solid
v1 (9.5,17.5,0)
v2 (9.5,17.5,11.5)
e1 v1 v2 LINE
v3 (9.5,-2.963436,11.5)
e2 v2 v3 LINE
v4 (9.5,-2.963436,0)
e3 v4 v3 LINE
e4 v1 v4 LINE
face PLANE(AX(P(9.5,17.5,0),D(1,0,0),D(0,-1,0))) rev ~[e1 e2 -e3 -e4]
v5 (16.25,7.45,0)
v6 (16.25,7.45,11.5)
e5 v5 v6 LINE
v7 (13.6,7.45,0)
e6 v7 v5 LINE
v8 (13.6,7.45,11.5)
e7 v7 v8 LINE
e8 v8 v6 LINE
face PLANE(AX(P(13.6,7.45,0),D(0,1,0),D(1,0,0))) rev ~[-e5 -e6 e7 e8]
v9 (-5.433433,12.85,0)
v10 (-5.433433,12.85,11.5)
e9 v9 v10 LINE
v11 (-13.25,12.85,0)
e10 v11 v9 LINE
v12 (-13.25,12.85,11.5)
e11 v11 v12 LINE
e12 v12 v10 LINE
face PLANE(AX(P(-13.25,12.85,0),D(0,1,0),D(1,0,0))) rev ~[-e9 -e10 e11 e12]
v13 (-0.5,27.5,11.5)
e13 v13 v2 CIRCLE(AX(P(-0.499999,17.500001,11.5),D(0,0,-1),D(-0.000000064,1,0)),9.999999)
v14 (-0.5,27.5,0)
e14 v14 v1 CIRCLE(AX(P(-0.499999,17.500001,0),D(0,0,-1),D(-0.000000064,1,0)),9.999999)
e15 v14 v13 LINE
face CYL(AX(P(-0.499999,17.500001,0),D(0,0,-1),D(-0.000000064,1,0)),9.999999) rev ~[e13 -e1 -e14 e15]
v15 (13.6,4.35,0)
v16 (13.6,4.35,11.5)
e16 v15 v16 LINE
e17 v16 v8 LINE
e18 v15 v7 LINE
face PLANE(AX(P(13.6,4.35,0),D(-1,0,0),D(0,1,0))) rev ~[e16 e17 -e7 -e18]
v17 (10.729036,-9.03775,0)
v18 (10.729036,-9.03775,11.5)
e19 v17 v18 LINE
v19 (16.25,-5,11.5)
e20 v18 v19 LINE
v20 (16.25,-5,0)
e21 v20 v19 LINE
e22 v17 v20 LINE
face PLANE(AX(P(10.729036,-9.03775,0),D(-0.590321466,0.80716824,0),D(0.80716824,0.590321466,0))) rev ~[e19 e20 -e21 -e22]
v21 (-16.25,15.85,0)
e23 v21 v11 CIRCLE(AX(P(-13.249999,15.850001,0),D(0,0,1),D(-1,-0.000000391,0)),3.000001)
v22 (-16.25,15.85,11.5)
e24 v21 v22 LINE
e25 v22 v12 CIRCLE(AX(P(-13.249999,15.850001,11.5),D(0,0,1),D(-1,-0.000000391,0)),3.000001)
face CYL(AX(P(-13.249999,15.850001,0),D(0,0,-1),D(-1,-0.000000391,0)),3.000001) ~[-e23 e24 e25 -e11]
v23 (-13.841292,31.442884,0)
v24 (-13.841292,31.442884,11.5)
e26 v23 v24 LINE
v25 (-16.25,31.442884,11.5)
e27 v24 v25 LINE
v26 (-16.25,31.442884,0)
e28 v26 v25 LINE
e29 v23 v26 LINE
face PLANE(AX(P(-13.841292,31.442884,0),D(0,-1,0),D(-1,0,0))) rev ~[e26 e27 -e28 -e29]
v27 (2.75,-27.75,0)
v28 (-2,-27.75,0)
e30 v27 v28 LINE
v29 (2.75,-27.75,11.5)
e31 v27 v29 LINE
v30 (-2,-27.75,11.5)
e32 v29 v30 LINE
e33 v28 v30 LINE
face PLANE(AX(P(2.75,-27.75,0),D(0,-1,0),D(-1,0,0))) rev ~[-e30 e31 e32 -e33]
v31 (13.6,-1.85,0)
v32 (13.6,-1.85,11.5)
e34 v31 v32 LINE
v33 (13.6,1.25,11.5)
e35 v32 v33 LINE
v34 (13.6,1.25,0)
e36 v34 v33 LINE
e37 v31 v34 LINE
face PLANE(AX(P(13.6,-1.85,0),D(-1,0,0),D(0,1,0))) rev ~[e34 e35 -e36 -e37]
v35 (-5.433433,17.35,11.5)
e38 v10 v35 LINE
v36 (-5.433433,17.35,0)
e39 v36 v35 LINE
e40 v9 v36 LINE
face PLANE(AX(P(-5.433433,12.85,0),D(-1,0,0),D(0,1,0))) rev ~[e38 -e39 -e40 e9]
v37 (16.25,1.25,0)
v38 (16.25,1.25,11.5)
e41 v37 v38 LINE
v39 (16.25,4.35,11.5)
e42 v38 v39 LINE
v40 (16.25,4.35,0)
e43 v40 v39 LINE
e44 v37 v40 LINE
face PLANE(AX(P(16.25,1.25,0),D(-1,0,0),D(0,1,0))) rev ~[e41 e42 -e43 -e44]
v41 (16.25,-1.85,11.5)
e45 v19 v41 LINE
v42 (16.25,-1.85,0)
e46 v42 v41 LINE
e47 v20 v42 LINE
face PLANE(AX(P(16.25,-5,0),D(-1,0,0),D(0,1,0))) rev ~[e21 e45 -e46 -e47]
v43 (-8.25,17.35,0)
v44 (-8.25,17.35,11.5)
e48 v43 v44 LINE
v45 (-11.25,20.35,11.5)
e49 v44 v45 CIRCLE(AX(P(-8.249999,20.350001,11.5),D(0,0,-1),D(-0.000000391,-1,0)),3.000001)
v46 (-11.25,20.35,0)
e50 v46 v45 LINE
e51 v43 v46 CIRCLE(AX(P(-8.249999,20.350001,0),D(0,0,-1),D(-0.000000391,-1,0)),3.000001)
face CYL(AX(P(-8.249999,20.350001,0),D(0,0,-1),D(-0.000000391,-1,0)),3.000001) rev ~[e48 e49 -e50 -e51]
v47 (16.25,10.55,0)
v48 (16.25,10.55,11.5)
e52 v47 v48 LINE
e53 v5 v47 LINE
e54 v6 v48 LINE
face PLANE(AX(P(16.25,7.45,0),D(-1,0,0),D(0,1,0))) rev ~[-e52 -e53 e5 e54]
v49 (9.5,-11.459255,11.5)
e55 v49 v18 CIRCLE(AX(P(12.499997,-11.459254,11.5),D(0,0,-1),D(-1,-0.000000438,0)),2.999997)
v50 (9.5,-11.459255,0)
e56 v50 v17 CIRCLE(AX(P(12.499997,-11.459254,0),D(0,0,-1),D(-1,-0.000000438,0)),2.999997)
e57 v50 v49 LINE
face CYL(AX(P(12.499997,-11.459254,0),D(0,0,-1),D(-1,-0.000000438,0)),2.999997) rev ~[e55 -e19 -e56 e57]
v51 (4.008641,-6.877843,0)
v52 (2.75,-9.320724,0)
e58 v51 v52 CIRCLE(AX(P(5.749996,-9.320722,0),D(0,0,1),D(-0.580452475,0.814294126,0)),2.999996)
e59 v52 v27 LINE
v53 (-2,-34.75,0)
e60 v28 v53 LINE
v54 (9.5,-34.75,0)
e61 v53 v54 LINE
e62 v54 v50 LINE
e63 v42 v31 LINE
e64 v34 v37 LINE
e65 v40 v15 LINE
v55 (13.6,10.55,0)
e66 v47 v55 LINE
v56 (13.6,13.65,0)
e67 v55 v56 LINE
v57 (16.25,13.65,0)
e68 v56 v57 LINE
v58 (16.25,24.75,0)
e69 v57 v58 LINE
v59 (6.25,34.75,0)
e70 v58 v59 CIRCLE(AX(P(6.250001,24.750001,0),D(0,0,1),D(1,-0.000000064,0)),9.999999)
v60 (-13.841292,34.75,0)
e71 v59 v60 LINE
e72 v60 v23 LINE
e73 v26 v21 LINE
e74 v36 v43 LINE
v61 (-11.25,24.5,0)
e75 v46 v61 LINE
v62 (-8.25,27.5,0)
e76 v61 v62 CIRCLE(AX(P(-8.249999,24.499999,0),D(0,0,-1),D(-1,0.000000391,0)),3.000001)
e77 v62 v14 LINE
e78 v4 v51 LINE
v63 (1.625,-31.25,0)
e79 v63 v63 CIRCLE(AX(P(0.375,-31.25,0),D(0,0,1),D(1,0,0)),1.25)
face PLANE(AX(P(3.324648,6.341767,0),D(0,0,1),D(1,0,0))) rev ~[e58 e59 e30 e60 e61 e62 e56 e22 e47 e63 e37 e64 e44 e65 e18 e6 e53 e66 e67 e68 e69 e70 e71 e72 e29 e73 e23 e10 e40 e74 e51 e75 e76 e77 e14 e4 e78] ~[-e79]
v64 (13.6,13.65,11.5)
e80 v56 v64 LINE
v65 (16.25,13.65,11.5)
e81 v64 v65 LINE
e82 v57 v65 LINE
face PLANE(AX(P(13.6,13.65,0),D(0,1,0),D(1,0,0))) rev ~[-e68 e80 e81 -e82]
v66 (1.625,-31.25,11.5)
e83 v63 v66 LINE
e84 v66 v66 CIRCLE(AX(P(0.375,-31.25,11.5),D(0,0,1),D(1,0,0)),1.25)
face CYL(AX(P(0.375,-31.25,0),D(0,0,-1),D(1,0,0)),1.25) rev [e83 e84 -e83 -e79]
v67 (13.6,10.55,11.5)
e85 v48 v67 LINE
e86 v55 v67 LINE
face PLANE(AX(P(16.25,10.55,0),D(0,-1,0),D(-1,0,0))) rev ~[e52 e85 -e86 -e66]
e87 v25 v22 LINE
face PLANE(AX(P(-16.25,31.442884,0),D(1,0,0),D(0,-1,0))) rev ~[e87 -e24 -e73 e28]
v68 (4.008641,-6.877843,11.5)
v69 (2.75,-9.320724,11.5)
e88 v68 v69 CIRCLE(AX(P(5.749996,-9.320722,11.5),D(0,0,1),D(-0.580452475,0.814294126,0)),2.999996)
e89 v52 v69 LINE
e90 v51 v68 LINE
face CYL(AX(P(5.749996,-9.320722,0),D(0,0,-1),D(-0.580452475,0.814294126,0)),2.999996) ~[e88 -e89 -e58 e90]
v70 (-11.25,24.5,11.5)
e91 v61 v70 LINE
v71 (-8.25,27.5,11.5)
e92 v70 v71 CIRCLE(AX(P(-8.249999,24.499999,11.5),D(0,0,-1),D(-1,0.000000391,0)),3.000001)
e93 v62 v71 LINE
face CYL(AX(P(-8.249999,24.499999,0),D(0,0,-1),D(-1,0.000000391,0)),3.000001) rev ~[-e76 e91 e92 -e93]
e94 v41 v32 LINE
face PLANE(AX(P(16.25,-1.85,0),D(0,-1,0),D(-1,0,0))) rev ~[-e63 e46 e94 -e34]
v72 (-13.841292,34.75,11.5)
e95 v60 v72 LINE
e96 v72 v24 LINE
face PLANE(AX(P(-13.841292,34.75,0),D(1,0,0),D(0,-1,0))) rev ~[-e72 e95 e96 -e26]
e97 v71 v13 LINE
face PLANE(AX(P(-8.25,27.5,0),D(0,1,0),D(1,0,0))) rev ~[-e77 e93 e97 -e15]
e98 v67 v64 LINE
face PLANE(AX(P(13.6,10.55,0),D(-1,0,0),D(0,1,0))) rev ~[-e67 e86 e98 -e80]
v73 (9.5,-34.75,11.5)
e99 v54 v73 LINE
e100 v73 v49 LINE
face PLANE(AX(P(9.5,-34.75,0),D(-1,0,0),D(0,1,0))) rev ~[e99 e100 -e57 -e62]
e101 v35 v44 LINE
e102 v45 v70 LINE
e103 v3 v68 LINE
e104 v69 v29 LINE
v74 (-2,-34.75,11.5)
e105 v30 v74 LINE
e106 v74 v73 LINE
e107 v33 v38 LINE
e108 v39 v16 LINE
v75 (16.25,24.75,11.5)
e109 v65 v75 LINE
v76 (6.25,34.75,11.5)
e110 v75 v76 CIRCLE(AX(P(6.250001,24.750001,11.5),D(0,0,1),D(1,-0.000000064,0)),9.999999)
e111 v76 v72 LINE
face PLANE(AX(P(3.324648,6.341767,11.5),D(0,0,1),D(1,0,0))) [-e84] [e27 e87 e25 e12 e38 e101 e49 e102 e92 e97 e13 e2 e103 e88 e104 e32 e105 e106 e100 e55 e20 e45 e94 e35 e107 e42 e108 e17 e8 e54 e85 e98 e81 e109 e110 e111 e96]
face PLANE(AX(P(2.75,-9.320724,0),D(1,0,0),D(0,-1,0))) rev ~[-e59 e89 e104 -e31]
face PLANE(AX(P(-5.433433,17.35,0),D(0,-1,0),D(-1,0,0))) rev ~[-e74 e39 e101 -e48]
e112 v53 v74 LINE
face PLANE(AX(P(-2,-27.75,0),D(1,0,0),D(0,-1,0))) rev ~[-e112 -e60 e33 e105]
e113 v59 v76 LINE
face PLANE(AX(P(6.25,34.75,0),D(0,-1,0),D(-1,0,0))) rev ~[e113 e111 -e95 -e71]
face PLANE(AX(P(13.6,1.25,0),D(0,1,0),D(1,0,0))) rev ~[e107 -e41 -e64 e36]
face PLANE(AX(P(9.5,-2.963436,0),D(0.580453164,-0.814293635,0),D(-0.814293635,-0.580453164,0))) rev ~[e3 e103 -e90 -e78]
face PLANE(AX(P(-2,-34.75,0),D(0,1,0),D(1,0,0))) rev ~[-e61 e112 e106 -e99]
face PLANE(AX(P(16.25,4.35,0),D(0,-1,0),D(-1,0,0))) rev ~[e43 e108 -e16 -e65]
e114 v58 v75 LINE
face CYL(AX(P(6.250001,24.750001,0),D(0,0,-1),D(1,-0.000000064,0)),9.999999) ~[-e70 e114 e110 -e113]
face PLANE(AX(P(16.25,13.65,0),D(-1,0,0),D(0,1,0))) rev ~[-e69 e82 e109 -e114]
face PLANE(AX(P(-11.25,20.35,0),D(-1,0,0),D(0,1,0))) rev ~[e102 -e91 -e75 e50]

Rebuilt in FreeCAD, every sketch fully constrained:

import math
import FreeCAD as App
import Part
import Sketcher

doc = App.newDocument("Part")
body = doc.addObject("PartDesign::Body", "Body")

sketch1 = body.newObject("Sketcher::SketchObject", "Sketch")
sketch1.AttachmentSupport = (doc.getObject("XY_Plane"), [""])
sketch1.MapMode = "FlatFace"
sketch1.addGeometry(Part.LineSegment(App.Vector(-2, -34.8, 0), App.Vector(9.5, -34.8, 0)), False)
sketch1.addGeometry(Part.LineSegment(App.Vector(9.5, -34.8, 0), App.Vector(9.5, -11.5, 0)), False)
sketch1.addGeometry(Part.ArcOfCircle(Part.Circle(App.Vector(12.5, -11.5, 0), App.Vector(0, 0, 1), 3), math.radians(126), math.radians(180)), False)
sketch1.addGeometry(Part.LineSegment(App.Vector(10.7, -9, 0), App.Vector(16.2, -5, 0)), False)
sketch1.addGeometry(Part.LineSegment(App.Vector(16.2, -5, 0), App.Vector(16.2, -1.9, 0)), False)
sketch1.addGeometry(Part.LineSegment(App.Vector(16.2, -1.9, 0), App.Vector(13.6, -1.9, 0)), False)
sketch1.addGeometry(Part.LineSegment(App.Vector(13.6, -1.9, 0), App.Vector(13.6, 1.2, 0)), False)
sketch1.addGeometry(Part.LineSegment(App.Vector(13.6, 1.2, 0), App.Vector(16.2, 1.2, 0)), False)
sketch1.addGeometry(Part.LineSegment(App.Vector(16.2, 1.2, 0), App.Vector(16.2, 4.3, 0)), False)
sketch1.addGeometry(Part.LineSegment(App.Vector(16.2, 4.3, 0), App.Vector(13.6, 4.3, 0)), False)
sketch1.addGeometry(Part.LineSegment(App.Vector(13.6, 4.3, 0), App.Vector(13.6, 7.5, 0)), False)
sketch1.addGeometry(Part.LineSegment(App.Vector(13.6, 7.5, 0), App.Vector(16.2, 7.5, 0)), False)
sketch1.addGeometry(Part.LineSegment(App.Vector(16.2, 7.5, 0), App.Vector(16.2, 10.6, 0)), False)
sketch1.addGeometry(Part.LineSegment(App.Vector(16.2, 10.6, 0), App.Vector(13.6, 10.6, 0)), False)
sketch1.addGeometry(Part.LineSegment(App.Vector(13.6, 10.6, 0), App.Vector(13.6, 13.7, 0)), False)
sketch1.addGeometry(Part.LineSegment(App.Vector(13.6, 13.7, 0), App.Vector(16.2, 13.7, 0)), False)
sketch1.addGeometry(Part.LineSegment(App.Vector(16.2, 13.7, 0), App.Vector(16.2, 24.8, 0)), False)
sketch1.addGeometry(Part.ArcOfCircle(Part.Circle(App.Vector(6.3, 24.8, 0), App.Vector(0, 0, 1), 10), math.radians(0), math.radians(90)), False)
sketch1.addGeometry(Part.LineSegment(App.Vector(6.2, 34.8, 0), App.Vector(-13.8, 34.8, 0)), False)
sketch1.addGeometry(Part.LineSegment(App.Vector(-13.8, 34.8, 0), App.Vector(-13.8, 31.4, 0)), False)
sketch1.addGeometry(Part.LineSegment(App.Vector(-13.8, 31.4, 0), App.Vector(-16.2, 31.4, 0)), False)
sketch1.addGeometry(Part.LineSegment(App.Vector(-16.2, 31.4, 0), App.Vector(-16.2, 15.8, 0)), False)
sketch1.addGeometry(Part.ArcOfCircle(Part.Circle(App.Vector(-13.2, 15.9, 0), App.Vector(0, 0, 1), 3), math.radians(-180), math.radians(-90)), False)
sketch1.addGeometry(Part.LineSegment(App.Vector(-13.2, 12.8, 0), App.Vector(-5.4, 12.8, 0)), False)
sketch1.addGeometry(Part.LineSegment(App.Vector(-5.4, 12.8, 0), App.Vector(-5.4, 17.4, 0)), False)
sketch1.addGeometry(Part.LineSegment(App.Vector(-5.4, 17.4, 0), App.Vector(-8.2, 17.4, 0)), False)
sketch1.addGeometry(Part.ArcOfCircle(Part.Circle(App.Vector(-8.2, 20.4, 0), App.Vector(0, 0, 1), 3), math.radians(-180), math.radians(-90)), False)
sketch1.addGeometry(Part.LineSegment(App.Vector(-11.2, 20.4, 0), App.Vector(-11.2, 24.5, 0)), False)
sketch1.addGeometry(Part.ArcOfCircle(Part.Circle(App.Vector(-8.2, 24.5, 0), App.Vector(0, 0, 1), 3), math.radians(90), math.radians(180)), False)
sketch1.addGeometry(Part.LineSegment(App.Vector(-8.2, 27.5, 0), App.Vector(-0.5, 27.5, 0)), False)
sketch1.addGeometry(Part.ArcOfCircle(Part.Circle(App.Vector(-0.5, 17.5, 0), App.Vector(0, 0, 1), 10), math.radians(0), math.radians(90)), False)
sketch1.addGeometry(Part.LineSegment(App.Vector(9.5, 17.5, 0), App.Vector(9.5, -3, 0)), False)
sketch1.addGeometry(Part.LineSegment(App.Vector(9.5, -3, 0), App.Vector(4, -6.9, 0)), False)
sketch1.addGeometry(Part.ArcOfCircle(Part.Circle(App.Vector(5.7, -9.3, 0), App.Vector(0, 0, 1), 3), math.radians(125), math.radians(180)), False)
sketch1.addGeometry(Part.LineSegment(App.Vector(2.8, -9.3, 0), App.Vector(2.8, -27.8, 0)), False)
sketch1.addGeometry(Part.LineSegment(App.Vector(2.8, -27.8, 0), App.Vector(-2, -27.8, 0)), False)
sketch1.addGeometry(Part.LineSegment(App.Vector(-2, -27.8, 0), App.Vector(-2, -34.8, 0)), False)
sketch1.addGeometry(Part.Circle(App.Vector(0.4, -31.2, 0), App.Vector(0, 0, 1), 1.2), False)
sketch1.addConstraint(Sketcher.Constraint("Coincident", 0, 2, 1, 1))
sketch1.addConstraint(Sketcher.Constraint("Tangent", 1, 2, 2, 2))
sketch1.addConstraint(Sketcher.Constraint("Tangent", 2, 1, 3, 1))
sketch1.addConstraint(Sketcher.Constraint("Coincident", 3, 2, 4, 1))
sketch1.addConstraint(Sketcher.Constraint("Coincident", 4, 2, 5, 1))
sketch1.addConstraint(Sketcher.Constraint("Coincident", 5, 2, 6, 1))
sketch1.addConstraint(Sketcher.Constraint("Coincident", 6, 2, 7, 1))
sketch1.addConstraint(Sketcher.Constraint("Coincident", 7, 2, 8, 1))
sketch1.addConstraint(Sketcher.Constraint("Coincident", 8, 2, 9, 1))
sketch1.addConstraint(Sketcher.Constraint("Coincident", 9, 2, 10, 1))
sketch1.addConstraint(Sketcher.Constraint("Coincident", 10, 2, 11, 1))
sketch1.addConstraint(Sketcher.Constraint("Coincident", 11, 2, 12, 1))
sketch1.addConstraint(Sketcher.Constraint("Coincident", 12, 2, 13, 1))
sketch1.addConstraint(Sketcher.Constraint("Coincident", 13, 2, 14, 1))
sketch1.addConstraint(Sketcher.Constraint("Coincident", 14, 2, 15, 1))
sketch1.addConstraint(Sketcher.Constraint("Coincident", 15, 2, 16, 1))
sketch1.addConstraint(Sketcher.Constraint("Tangent", 16, 2, 17, 1))
sketch1.addConstraint(Sketcher.Constraint("Tangent", 17, 2, 18, 1))
sketch1.addConstraint(Sketcher.Constraint("Coincident", 18, 2, 19, 1))
sketch1.addConstraint(Sketcher.Constraint("Coincident", 19, 2, 20, 1))
sketch1.addConstraint(Sketcher.Constraint("Coincident", 20, 2, 21, 1))
sketch1.addConstraint(Sketcher.Constraint("Tangent", 21, 2, 22, 1))
sketch1.addConstraint(Sketcher.Constraint("Tangent", 22, 2, 23, 1))
sketch1.addConstraint(Sketcher.Constraint("Coincident", 23, 2, 24, 1))
sketch1.addConstraint(Sketcher.Constraint("Coincident", 24, 2, 25, 1))
sketch1.addConstraint(Sketcher.Constraint("Tangent", 25, 2, 26, 2))
sketch1.addConstraint(Sketcher.Constraint("Tangent", 26, 1, 27, 1))
sketch1.addConstraint(Sketcher.Constraint("Tangent", 27, 2, 28, 2))
sketch1.addConstraint(Sketcher.Constraint("Tangent", 28, 1, 29, 1))
sketch1.addConstraint(Sketcher.Constraint("Tangent", 29, 2, 30, 2))
sketch1.addConstraint(Sketcher.Constraint("Tangent", 30, 1, 31, 1))
sketch1.addConstraint(Sketcher.Constraint("Coincident", 31, 2, 32, 1))
sketch1.addConstraint(Sketcher.Constraint("Tangent", 32, 2, 33, 1))
sketch1.addConstraint(Sketcher.Constraint("Tangent", 33, 2, 34, 1))
sketch1.addConstraint(Sketcher.Constraint("Coincident", 34, 2, 35, 1))
sketch1.addConstraint(Sketcher.Constraint("Coincident", 35, 2, 36, 1))
sketch1.addConstraint(Sketcher.Constraint("Coincident", 36, 2, 0, 1))
sketch1.addConstraint(Sketcher.Constraint("Horizontal", 0))
sketch1.addConstraint(Sketcher.Constraint("Vertical", 1))
sketch1.addConstraint(Sketcher.Constraint("Vertical", 4))
sketch1.addConstraint(Sketcher.Constraint("Horizontal", 5))
sketch1.addConstraint(Sketcher.Constraint("Vertical", 6))
sketch1.addConstraint(Sketcher.Constraint("Horizontal", 7))
sketch1.addConstraint(Sketcher.Constraint("Vertical", 8))
sketch1.addConstraint(Sketcher.Constraint("Horizontal", 9))
sketch1.addConstraint(Sketcher.Constraint("Vertical", 10))
sketch1.addConstraint(Sketcher.Constraint("Horizontal", 11))
sketch1.addConstraint(Sketcher.Constraint("Vertical", 12))
sketch1.addConstraint(Sketcher.Constraint("Horizontal", 13))
sketch1.addConstraint(Sketcher.Constraint("Vertical", 14))
sketch1.addConstraint(Sketcher.Constraint("Horizontal", 15))
sketch1.addConstraint(Sketcher.Constraint("Vertical", 16))
sketch1.addConstraint(Sketcher.Constraint("Horizontal", 18))
sketch1.addConstraint(Sketcher.Constraint("Vertical", 19))
sketch1.addConstraint(Sketcher.Constraint("Horizontal", 20))
sketch1.addConstraint(Sketcher.Constraint("Vertical", 21))
sketch1.addConstraint(Sketcher.Constraint("Horizontal", 23))
sketch1.addConstraint(Sketcher.Constraint("Vertical", 24))
sketch1.addConstraint(Sketcher.Constraint("Horizontal", 25))
sketch1.addConstraint(Sketcher.Constraint("Vertical", 27))
sketch1.addConstraint(Sketcher.Constraint("Horizontal", 29))
sketch1.addConstraint(Sketcher.Constraint("Vertical", 31))
sketch1.addConstraint(Sketcher.Constraint("Vertical", 34))
sketch1.addConstraint(Sketcher.Constraint("Horizontal", 35))
sketch1.addConstraint(Sketcher.Constraint("Vertical", 36))
sketch1.addConstraint(Sketcher.Constraint("Equal", 22, 26))
sketch1.addConstraint(Sketcher.Constraint("Equal", 26, 28))
sketch1.addConstraint(Sketcher.Constraint("Equal", 17, 30))
sketch1.addConstraint(Sketcher.Constraint("Equal", 2, 33))
sketch1.addConstraint(Sketcher.Constraint("Vertical", 4, 2, 7, 2))
sketch1.addConstraint(Sketcher.Constraint("Vertical", 6, 2, 9, 2))
sketch1.addConstraint(Sketcher.Constraint("Vertical", 8, 2, 11, 2))
sketch1.addConstraint(Sketcher.Constraint("Vertical", 10, 2, 13, 2))
sketch1.addConstraint(Sketcher.Constraint("Vertical", 12, 2, 15, 2))
sketch1.addConstraint(Sketcher.Constraint("Vertical", 1, 2, 30, 1))
sketch1.addConstraint(Sketcher.Constraint("Equal", 6, 8))
sketch1.addConstraint(Sketcher.Constraint("Equal", 8, 10))
sketch1.addConstraint(Sketcher.Constraint("Equal", 10, 12))
sketch1.addConstraint(Sketcher.Constraint("Equal", 12, 14))
sketch1.addConstraint(Sketcher.Constraint("Radius", 17, 9.999999))
sketch1.addConstraint(Sketcher.Constraint("Radius", 22, 3.000001))
sketch1.addConstraint(Sketcher.Constraint("Diameter", 37, 2.5))
sketch1.addConstraint(Sketcher.Constraint("DistanceY", 36, 2, 36, 1, 7.0))
sketch1.addConstraint(Sketcher.Constraint("DistanceX", 0, 1, 0, 2, 11.5))
sketch1.addConstraint(Sketcher.Constraint("DistanceY", 6, 1, 6, 2, 3.1))
sketch1.addConstraint(Sketcher.Constraint("DistanceY", 16, 1, 16, 2, 11.1))
sketch1.addConstraint(Sketcher.Constraint("DistanceY", 24, 1, 24, 2, 4.5))
sketch1.addConstraint(Sketcher.Constraint("DistanceY", 3, 2, -1, 1, 5.0))
sketch1.addConstraint(Sketcher.Constraint("DistanceX", 35, 2, -1, 1, 2.0))
sketch1.addConstraint(Sketcher.Constraint("DistanceX", 22, 3, 26, 3, 5.0))
sketch1.addConstraint(Sketcher.Constraint("DistanceX", 5, 2, 5, 1, 2.65))
sketch1.addConstraint(Sketcher.Constraint("DistanceX", 29, 1, 29, 2, 7.75))
sketch1.addConstraint(Sketcher.Constraint("DistanceX", 35, 2, 35, 1, 4.75))
sketch1.addConstraint(Sketcher.Constraint("DistanceY", 4, 1, 4, 2, 3.15))
sketch1.addConstraint(Sketcher.Constraint("DistanceY", 27, 1, 27, 2, 4.15))
sketch1.addConstraint(Sketcher.Constraint("DistanceY", -1, 1, 28, 3, 24.499999))
sketch1.addConstraint(Sketcher.Constraint("DistanceX", -1, 1, 5, 2, 13.6))
sketch1.addConstraint(Sketcher.Constraint("DistanceY", 37, 3, 22, 3, 47.100001))
sketch1.addConstraint(Sketcher.Constraint("DistanceY", 0, 2, 37, 3, 3.5))
sketch1.addConstraint(Sketcher.Constraint("DistanceX", -1, 1, 37, 3, 0.375))
sketch1.addConstraint(Sketcher.Constraint("Radius", 2, 2.999997))
sketch1.addConstraint(Sketcher.Constraint("DistanceX", 18, 2, 18, 1, 20.091292))
sketch1.addConstraint(Sketcher.Constraint("Distance", 32, 6.743709))
sketch1.addConstraint(Sketcher.Constraint("DistanceX", 23, 1, 23, 2, 7.816567))
sketch1.addConstraint(Sketcher.Constraint("DistanceY", 1, 1, 1, 2, 23.290745))
sketch1.addConstraint(Sketcher.Constraint("DistanceY", 19, 2, 19, 1, 3.307116))
sketch1.addConstraint(Sketcher.Constraint("DistanceY", 31, 2, 31, 1, 20.463436))
pad1 = body.newObject("PartDesign::Pad", "Pad")
pad1.Profile = sketch1
pad1.Length = 11.5

doc.recompute()
